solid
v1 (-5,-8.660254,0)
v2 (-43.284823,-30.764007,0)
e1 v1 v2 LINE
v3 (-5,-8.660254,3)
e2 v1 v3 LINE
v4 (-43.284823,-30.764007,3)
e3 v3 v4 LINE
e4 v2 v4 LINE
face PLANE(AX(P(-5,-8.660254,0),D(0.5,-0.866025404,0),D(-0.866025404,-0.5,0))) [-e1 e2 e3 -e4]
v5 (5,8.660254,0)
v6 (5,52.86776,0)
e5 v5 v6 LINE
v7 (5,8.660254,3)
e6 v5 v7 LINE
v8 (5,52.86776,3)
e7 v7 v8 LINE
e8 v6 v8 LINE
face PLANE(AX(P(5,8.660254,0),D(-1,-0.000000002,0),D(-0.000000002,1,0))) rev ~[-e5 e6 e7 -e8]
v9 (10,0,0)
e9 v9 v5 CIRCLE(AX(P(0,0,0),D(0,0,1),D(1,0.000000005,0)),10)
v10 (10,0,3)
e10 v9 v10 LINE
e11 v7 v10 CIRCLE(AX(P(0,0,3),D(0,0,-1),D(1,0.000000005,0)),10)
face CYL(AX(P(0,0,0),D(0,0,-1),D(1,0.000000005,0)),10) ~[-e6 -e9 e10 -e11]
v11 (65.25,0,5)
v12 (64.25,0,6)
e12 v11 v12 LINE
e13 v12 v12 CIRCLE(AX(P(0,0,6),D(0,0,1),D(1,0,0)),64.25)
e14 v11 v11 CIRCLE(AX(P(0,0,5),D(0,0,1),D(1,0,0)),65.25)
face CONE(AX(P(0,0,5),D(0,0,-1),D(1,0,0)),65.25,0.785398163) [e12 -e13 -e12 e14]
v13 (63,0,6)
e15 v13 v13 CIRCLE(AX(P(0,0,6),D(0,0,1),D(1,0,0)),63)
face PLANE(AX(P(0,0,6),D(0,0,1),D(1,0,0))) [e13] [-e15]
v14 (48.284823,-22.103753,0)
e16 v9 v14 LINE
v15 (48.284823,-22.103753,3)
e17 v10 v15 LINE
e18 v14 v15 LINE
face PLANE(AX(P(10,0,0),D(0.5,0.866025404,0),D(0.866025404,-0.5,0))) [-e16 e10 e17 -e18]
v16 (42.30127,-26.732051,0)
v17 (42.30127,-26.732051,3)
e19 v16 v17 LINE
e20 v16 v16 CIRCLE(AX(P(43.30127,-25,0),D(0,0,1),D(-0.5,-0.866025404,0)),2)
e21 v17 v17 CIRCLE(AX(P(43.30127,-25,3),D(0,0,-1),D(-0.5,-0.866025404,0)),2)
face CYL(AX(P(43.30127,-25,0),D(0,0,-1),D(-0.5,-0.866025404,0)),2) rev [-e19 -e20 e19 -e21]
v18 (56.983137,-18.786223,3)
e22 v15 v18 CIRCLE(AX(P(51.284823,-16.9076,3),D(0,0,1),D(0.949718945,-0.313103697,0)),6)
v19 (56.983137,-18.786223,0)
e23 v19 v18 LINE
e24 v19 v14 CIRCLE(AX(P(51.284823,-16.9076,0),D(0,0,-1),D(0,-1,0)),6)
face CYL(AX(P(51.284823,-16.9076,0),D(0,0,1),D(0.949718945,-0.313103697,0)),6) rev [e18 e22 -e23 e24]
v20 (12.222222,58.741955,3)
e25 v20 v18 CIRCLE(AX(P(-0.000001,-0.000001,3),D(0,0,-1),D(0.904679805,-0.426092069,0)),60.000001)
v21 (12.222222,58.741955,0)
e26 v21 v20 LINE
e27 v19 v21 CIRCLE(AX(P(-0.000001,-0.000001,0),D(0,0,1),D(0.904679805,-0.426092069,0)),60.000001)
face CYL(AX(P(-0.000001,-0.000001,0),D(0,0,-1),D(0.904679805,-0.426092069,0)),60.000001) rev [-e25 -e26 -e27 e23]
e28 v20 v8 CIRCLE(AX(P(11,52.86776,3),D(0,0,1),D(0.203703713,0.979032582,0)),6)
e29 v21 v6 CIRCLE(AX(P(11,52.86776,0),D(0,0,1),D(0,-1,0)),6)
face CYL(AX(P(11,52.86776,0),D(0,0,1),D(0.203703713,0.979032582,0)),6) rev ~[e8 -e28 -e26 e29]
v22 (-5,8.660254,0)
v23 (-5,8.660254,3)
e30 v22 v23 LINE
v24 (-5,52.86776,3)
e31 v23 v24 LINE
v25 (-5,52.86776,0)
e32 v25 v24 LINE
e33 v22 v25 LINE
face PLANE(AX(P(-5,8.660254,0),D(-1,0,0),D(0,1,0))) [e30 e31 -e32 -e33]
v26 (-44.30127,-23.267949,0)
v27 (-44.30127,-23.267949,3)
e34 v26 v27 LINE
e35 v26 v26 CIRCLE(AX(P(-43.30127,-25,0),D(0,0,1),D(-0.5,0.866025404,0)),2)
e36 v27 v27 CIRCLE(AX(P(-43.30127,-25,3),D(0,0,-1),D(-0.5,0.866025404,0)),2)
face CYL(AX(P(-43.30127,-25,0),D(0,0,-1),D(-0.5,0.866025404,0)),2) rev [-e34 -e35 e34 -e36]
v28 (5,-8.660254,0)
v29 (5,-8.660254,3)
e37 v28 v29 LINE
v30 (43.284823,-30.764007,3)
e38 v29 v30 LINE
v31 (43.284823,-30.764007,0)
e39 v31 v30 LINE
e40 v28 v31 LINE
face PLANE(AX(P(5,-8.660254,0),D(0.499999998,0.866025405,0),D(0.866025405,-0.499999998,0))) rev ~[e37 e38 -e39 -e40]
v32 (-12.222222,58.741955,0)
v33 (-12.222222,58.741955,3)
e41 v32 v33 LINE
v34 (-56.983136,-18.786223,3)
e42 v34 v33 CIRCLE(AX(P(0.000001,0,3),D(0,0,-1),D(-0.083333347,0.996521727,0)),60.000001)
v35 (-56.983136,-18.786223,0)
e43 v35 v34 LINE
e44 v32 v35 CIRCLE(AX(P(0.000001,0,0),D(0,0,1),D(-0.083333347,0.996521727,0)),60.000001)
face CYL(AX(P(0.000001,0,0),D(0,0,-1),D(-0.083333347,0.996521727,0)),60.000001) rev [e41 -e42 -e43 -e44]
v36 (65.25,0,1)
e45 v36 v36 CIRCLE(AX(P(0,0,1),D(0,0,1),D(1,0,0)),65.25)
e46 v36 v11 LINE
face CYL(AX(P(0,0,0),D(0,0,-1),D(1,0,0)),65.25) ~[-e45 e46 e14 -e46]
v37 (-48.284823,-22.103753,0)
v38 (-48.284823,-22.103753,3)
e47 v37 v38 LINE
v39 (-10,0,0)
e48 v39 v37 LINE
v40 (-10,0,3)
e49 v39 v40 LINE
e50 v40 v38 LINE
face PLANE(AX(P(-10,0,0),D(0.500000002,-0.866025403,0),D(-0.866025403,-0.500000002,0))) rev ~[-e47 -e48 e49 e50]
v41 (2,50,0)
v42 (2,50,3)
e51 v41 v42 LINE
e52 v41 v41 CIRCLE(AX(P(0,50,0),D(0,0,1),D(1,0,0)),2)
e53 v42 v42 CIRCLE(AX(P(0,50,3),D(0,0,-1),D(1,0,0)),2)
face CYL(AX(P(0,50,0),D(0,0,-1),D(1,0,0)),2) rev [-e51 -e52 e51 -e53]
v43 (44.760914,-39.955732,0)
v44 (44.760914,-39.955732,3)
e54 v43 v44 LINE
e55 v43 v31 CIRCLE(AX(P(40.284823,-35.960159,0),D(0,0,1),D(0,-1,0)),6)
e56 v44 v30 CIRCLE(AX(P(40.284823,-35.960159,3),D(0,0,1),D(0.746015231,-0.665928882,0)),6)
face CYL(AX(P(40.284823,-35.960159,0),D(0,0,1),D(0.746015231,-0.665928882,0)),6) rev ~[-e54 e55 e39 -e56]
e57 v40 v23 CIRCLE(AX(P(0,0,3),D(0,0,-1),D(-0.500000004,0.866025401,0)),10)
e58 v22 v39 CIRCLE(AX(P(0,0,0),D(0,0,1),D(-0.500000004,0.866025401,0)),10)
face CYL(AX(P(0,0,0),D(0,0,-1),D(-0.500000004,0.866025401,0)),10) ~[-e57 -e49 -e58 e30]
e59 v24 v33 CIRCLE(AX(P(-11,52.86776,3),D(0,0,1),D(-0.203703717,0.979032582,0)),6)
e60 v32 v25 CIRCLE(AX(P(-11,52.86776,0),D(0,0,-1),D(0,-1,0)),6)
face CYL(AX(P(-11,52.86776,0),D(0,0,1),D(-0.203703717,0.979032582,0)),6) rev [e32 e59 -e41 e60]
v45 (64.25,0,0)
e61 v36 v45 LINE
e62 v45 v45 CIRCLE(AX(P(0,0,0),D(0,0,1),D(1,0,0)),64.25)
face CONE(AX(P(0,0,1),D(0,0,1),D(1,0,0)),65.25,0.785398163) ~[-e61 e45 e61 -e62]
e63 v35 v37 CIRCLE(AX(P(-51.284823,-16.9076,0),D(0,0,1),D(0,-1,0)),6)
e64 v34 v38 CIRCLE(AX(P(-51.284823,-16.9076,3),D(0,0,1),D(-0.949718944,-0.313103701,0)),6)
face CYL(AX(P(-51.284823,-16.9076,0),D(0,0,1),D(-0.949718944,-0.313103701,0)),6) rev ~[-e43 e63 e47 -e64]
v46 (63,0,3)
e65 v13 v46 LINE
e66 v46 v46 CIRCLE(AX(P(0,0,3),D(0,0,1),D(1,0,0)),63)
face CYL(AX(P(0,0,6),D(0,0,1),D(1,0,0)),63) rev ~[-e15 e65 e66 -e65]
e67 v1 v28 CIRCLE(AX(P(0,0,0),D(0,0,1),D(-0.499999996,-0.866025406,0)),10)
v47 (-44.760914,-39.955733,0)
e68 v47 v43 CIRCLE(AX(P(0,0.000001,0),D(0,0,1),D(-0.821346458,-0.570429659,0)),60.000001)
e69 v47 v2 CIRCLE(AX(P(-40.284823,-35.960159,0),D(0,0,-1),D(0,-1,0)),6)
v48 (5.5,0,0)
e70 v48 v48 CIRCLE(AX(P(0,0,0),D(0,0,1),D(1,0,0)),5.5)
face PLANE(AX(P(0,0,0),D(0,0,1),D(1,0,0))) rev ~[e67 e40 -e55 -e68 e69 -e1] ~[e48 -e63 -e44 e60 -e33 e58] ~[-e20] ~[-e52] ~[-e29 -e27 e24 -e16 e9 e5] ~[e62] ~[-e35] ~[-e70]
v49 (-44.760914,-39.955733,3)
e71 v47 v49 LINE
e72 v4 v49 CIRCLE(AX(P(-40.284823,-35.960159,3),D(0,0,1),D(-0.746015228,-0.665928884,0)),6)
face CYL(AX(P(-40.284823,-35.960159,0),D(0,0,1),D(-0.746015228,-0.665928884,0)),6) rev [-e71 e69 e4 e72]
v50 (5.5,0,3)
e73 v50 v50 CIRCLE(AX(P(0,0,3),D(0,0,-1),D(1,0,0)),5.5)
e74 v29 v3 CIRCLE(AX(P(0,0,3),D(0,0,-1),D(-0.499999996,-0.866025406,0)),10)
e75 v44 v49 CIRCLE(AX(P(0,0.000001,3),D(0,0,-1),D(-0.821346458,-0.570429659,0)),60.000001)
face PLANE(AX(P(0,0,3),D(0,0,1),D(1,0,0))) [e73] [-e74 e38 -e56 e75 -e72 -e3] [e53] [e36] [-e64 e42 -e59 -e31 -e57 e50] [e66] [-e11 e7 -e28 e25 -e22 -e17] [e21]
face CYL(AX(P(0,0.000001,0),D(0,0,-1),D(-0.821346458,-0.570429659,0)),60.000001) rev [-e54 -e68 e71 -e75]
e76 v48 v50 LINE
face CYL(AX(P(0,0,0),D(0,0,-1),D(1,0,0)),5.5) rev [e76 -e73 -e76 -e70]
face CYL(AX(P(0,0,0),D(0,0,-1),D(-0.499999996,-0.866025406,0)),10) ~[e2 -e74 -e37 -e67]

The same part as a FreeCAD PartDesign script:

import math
import FreeCAD as App
import Part
import Sketcher
Q = App.Units.Quantity


def edges_at(feature, points):
    """Names of the edges that pass closest to the given points."""
    edges = feature.Shape.Edges
    near = lambda p: min(range(len(edges)), key=lambda i: edges[i].distToShape(Part.Vertex(*p))[0])
    return sorted({f"Edge{near(p) + 1}" for p in points})

doc = App.newDocument("Part")
params = doc.addObject("Spreadsheet::Sheet", "Params")
for row, (alias, value) in enumerate([
    ("sketch1_diameter", "130.5 mm"),
    ("pad1_length", "6 mm"),
    ("sketch2_diameter", "11 mm"),
    ("sketch3_diameter", "4 mm"),
    ("sketch3_radius", "60.000001 mm"),
    ("sketch3_radius2", "10 mm"),
    ("chamfer_size", "1 mm"),
    ("fillet_radius", "6 mm"),
    ("sketch4_diameter", "126 mm"),
    ("pocket3_length", "3 mm"),
], start=1):
    params.set(f"A{row}", alias)
    params.set(f"B{row}", "=" + value)
    params.setAlias(f"B{row}", alias)

body = doc.addObject("PartDesign::Body", "Body")

sketch1 = doc.addObject("Sketcher::SketchObject", "Sketch")
body.addObject(sketch1)
sketch1.AttachmentSupport = (doc.XY_Plane, [""])
sketch1.MapMode = "FlatFace"
sketch1.addGeometry(Part.Circle(App.Vector(0, 0, 0), App.Vector(0, 0, 1), 65.25), False)
sketch1.addConstraint([
    Sketcher.Constraint("Coincident", 0, 3, -1, 1),
    Sketcher.Constraint("Diameter", 0, Q("130.5 mm")),
])
sketch1.setExpression("Constraints[1]", "Params.sketch1_diameter")
pad1 = doc.addObject("PartDesign::Pad", "Pad")
body.addObject(pad1)
pad1.Profile = sketch1
pad1.setExpression("Length", "Params.pad1_length")

sketch2 = doc.addObject("Sketcher::SketchObject", "Sketch001")
body.addObject(sketch2)
sketch2.AttachmentSupport = (doc.XY_Plane, [""])
sketch2.MapMode = "FlatFace"
sketch2.addGeometry(Part.Circle(App.Vector(0, 0, 0), App.Vector(0, 0, 1), 5.5), False)
sketch2.addConstraint([
    Sketcher.Constraint("Coincident", 0, 3, -1, 1),
    Sketcher.Constraint("Diameter", 0, Q("11 mm")),
])
sketch2.setExpression("Constraints[1]", "Params.sketch2_diameter")
pocket1 = doc.addObject("PartDesign::Pocket", "Pocket")
body.addObject(pocket1)
pocket1.Profile = sketch2
pocket1.Type = "ThroughAll"
pocket1.Reversed = True

sketch3 = doc.addObject("Sketcher::SketchObject", "Sketch002")
body.addObject(sketch3)
sketch3.AttachmentSupport = (doc.XY_Plane, [""])
sketch3.MapMode = "FlatFace"
sketch3.addGeometry([
    Part.Circle(App.Vector(0, 50, 0), App.Vector(0, 0, 1), 2),
    Part.ArcOfCircle(Part.Circle(App.Vector(0.000001, 0, 0), App.Vector(0, 0, 1), 60.000001), math.radians(94.780193), math.radians(205.219808)),
    Part.LineSegment(App.Vector(-54.280788, -25.565525, 0), App.Vector(-10, 0, 0)),
    Part.ArcOfCircle(Part.Circle(App.Vector(0, 0, 0), App.Vector(0, 0, 1), 10), math.radians(120), math.radians(179.999999)),
    Part.LineSegment(App.Vector(-5, 8.660254, 0), App.Vector(-5, 59.791304, 0)),
], False)
sketch3.addConstraint([
    Sketcher.Constraint("Coincident", 1, 2, 2, 1),
    Sketcher.Constraint("Coincident", 2, 2, 3, 2),
    Sketcher.Constraint("Coincident", 3, 1, 4, 1),
    Sketcher.Constraint("Coincident", 4, 2, 1, 1),
    Sketcher.Constraint("Vertical", 4),
    Sketcher.Constraint("Coincident", 1, 3, -1, 1),
    Sketcher.Constraint("Coincident", 3, 3, -1, 1),
    Sketcher.Constraint("PointOnObject", 0, 3, -2),
    Sketcher.Constraint("PointOnObject", 2, 2, -1),
    Sketcher.Constraint("Diameter", 0, Q("4 mm")),
    Sketcher.Constraint("Radius", 1, Q("60.000001 mm")),
    Sketcher.Constraint("Radius", 3, Q("10 mm")),
    Sketcher.Constraint("Angle", 2, Q("30 deg")),
    Sketcher.Constraint("DistanceY", -1, 1, 0, 3, Q("50 mm")),
    Sketcher.Constraint("DistanceX", 3, 1, -1, 1, Q("5 mm")),
])
sketch3.setExpression("Constraints[9]", "Params.sketch3_diameter")
sketch3.setExpression("Constraints[10]", "Params.sketch3_radius")
sketch3.setExpression("Constraints[11]", "Params.sketch3_radius2")
pocket2 = doc.addObject("PartDesign::Pocket", "Pocket001")
body.addObject(pocket2)
pocket2.Profile = sketch3
pocket2.Type = "ThroughAll"
pocket2.Reversed = True
doc.recompute()

polarpattern = doc.addObject("PartDesign::PolarPattern", "PolarPattern")
body.addObject(polarpattern)
polarpattern.Originals = [pocket2]
polarpattern.Axis = (doc.Z_Axis, [""])
polarpattern.Angle = 360
polarpattern.Occurrences = 3
body.Tip = polarpattern
doc.recompute()

chamfer = doc.addObject("PartDesign::Chamfer", "Chamfer")
body.addObject(chamfer)
chamfer.Base = (polarpattern, edges_at(polarpattern, [(-65.25, 0, 6), (-65.25, 0, 0)]))
chamfer.setExpression("Size", "Params.chamfer_size")
doc.recompute()

fillet = doc.addObject("PartDesign::Fillet", "Fillet")
body.addObject(fillet)
fillet.Base = (chamfer, edges_at(chamfer, [
    (-54.281, -25.566, 3),
    (-5, 59.791, 3),
    (5, 59.791, 3),
    (54.281, -25.566, 3),
    (49.281, -34.226, 3),
    (-49.281, -34.226, 3),
]))
fillet.setExpression("Radius", "Params.fillet_radius")

sketch4 = doc.addObject("Sketcher::SketchObject", "Sketch003")
body.addObject(sketch4)
sketch4.AttachmentSupport = (doc.XY_Plane, [""])
sketch4.MapMode = "FlatFace"
sketch4.AttachmentOffset = App.Placement(App.Vector(0, 0, 6), App.Rotation())
sketch4.addGeometry(Part.Circle(App.Vector(0, 0, 0), App.Vector(0, 0, 1), 63), False)
sketch4.addConstraint([
    Sketcher.Constraint("Coincident", 0, 3, -1, 1),
    Sketcher.Constraint("Diameter", 0, Q("126 mm")),
])
sketch4.setExpression("Constraints[1]", "Params.sketch4_diameter")
pocket3 = doc.addObject("PartDesign::Pocket", "Pocket002")
body.addObject(pocket3)
pocket3.Profile = sketch4
pocket3.setExpression("Length", "Params.pocket3_length")

doc.recompute()
